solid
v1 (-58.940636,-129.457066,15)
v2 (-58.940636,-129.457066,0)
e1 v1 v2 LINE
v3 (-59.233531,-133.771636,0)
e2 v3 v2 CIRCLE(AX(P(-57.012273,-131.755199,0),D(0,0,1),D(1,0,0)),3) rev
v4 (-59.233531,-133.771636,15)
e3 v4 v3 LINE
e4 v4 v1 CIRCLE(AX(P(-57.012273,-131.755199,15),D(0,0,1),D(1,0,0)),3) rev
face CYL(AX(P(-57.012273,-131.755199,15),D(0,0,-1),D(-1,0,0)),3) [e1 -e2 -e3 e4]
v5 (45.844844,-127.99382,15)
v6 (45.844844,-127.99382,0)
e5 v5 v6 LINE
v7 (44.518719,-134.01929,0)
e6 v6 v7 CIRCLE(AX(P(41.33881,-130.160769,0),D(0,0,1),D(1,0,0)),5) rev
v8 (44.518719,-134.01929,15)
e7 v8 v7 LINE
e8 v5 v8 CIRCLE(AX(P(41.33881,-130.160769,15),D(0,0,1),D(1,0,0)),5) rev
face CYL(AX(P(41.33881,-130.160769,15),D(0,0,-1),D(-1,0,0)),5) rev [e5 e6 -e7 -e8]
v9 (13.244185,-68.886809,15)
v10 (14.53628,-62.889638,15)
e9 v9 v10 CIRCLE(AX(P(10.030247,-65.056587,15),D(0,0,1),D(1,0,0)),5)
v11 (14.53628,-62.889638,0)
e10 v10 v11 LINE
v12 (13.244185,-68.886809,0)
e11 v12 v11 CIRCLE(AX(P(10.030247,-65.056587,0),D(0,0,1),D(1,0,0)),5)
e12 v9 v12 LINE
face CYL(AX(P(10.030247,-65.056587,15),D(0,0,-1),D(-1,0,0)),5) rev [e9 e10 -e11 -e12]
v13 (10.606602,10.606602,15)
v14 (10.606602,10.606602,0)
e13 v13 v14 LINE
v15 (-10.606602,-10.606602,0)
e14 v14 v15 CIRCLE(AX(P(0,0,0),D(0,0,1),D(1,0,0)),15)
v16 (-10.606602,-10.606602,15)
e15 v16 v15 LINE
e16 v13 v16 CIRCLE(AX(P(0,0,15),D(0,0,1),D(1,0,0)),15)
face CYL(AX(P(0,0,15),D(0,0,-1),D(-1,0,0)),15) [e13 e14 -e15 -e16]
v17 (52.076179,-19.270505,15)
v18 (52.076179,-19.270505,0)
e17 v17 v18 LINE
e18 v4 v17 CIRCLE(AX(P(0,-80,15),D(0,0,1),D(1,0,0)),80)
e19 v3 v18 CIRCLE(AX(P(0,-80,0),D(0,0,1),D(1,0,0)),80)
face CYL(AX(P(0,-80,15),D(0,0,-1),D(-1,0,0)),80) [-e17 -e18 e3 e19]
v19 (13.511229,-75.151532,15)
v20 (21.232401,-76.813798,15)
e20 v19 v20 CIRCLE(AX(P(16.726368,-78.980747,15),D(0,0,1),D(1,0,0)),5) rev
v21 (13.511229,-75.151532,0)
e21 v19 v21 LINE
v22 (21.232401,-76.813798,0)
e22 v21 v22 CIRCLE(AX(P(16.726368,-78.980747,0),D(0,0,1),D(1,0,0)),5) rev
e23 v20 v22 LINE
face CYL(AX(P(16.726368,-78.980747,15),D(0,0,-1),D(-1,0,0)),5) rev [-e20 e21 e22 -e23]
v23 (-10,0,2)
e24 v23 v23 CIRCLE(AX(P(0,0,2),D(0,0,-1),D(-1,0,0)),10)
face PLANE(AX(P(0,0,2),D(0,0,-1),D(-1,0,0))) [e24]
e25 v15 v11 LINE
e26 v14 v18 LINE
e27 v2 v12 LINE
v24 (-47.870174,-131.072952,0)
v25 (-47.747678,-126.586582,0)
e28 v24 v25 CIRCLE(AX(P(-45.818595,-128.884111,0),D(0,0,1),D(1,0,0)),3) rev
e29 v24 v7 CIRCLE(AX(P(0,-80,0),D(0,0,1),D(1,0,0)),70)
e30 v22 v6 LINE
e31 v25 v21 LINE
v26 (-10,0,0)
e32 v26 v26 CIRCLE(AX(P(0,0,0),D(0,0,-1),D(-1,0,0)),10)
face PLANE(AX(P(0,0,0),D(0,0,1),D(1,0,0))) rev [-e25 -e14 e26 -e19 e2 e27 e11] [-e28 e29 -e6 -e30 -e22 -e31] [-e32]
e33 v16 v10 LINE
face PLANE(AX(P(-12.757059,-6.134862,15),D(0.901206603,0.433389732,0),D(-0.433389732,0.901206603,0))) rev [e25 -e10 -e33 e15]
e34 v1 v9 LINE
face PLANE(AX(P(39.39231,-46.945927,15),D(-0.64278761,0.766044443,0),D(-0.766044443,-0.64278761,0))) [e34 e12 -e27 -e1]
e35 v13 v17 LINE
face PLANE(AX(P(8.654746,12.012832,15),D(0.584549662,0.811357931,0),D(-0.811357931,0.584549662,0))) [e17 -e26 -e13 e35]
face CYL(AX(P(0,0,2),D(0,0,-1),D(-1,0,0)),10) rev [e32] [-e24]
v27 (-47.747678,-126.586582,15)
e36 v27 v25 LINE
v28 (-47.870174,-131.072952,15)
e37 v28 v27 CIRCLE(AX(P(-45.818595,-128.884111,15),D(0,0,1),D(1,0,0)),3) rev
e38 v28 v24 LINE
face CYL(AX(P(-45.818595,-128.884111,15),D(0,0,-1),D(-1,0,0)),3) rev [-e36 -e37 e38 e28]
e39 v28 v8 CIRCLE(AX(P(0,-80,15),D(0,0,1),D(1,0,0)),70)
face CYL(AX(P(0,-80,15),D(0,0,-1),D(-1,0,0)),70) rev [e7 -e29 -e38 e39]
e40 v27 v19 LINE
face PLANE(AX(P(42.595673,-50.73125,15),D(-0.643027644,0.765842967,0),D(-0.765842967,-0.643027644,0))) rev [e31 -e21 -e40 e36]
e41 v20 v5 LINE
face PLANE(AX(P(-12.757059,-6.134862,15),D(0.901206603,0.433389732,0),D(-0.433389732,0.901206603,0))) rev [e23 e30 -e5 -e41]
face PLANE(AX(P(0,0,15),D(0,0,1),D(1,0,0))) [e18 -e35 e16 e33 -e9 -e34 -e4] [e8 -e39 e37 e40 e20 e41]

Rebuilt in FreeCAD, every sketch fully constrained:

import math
import FreeCAD as App
import Part
import Sketcher
from FreeCAD import Vector
Q = App.Units.Quantity

doc = App.newDocument("Part")
body = doc.addObject("PartDesign::Body", "Body")

# Sketch on XY plane
sketch1 = body.newObject("Sketcher::SketchObject", "Sketch")
sketch1.AttachmentSupport = (doc.getObject("XY_Plane"), [""])
sketch1.MapMode = "FlatFace"
sketch1.addGeometry(Part.LineSegment(Vector(-53.6, -125, 0), Vector(-58.9, -129.5, 0)), False)
sketch1.addGeometry(Part.ArcOfCircle(Part.Circle(Vector(-57, -131.8, 0), Vector(0, 0, 1), 3), math.radians(130), math.radians(222)), False)
sketch1.addGeometry(Part.ArcOfCircle(Part.Circle(Vector(0, -80, 0), Vector(0, 0, 1), 80), math.radians(-138), math.radians(49)), False)
sketch1.addGeometry(Part.LineSegment(Vector(52.1, -19.3, 0), Vector(10.6, 10.6, 0)), False)
sketch1.addGeometry(Part.ArcOfCircle(Part.Circle(Vector(0, 0, 0), Vector(0, 0, 1), 15), math.radians(45), math.radians(225)), False)
sketch1.addGeometry(Part.LineSegment(Vector(-10.6, -10.6, 0), Vector(14.5, -62.9, 0)), False)
sketch1.addGeometry(Part.ArcOfCircle(Part.Circle(Vector(10, -65.1, 0), Vector(0, 0, 1), 5), math.radians(-50), math.radians(26)), False)
sketch1.addGeometry(Part.LineSegment(Vector(13.2, -68.9, 0), Vector(-53.6, -125, 0)), False)
sketch1.addGeometry(Part.ArcOfCircle(Part.Circle(Vector(16.7, -79, 0), Vector(0, 0, 1), 5), math.radians(26), math.radians(130)), False)
sketch1.addGeometry(Part.LineSegment(Vector(21.2, -76.8, 0), Vector(45.8, -128, 0)), False)
sketch1.addGeometry(Part.ArcOfCircle(Part.Circle(Vector(41.3, -130.2, 0), Vector(0, 0, 1), 5), math.radians(-51), math.radians(26)), False)
sketch1.addGeometry(Part.ArcOfCircle(Part.Circle(Vector(0, -80, 0), Vector(0, 0, 1), 70), math.radians(-133), math.radians(-51)), False)
sketch1.addGeometry(Part.ArcOfCircle(Part.Circle(Vector(-45.8, -128.9, 0), Vector(0, 0, 1), 3), math.radians(130), math.radians(227)), False)
sketch1.addGeometry(Part.LineSegment(Vector(-47.7, -126.6, 0), Vector(13.5, -75.2, 0)), False)
sketch1.addConstraint(Sketcher.Constraint("Tangent", 0, 2, 1, 1))
sketch1.addConstraint(Sketcher.Constraint("Tangent", 1, 2, 2, 1))
sketch1.addConstraint(Sketcher.Constraint("Coincident", 2, 2, 3, 1))
sketch1.addConstraint(Sketcher.Constraint("Coincident", 3, 2, 4, 1))
sketch1.addConstraint(Sketcher.Constraint("Coincident", 4, 2, 5, 1))
sketch1.addConstraint(Sketcher.Constraint("Tangent", 5, 2, 6, 2))
sketch1.addConstraint(Sketcher.Constraint("Tangent", 6, 1, 7, 1))
sketch1.addConstraint(Sketcher.Constraint("Coincident", 7, 2, 0, 1))
sketch1.addConstraint(Sketcher.Constraint("Tangent", 8, 1, 9, 1))
sketch1.addConstraint(Sketcher.Constraint("Tangent", 9, 2, 10, 2))
sketch1.addConstraint(Sketcher.Constraint("Tangent", 10, 1, 11, 2))
sketch1.addConstraint(Sketcher.Constraint("Tangent", 11, 1, 12, 2))
sketch1.addConstraint(Sketcher.Constraint("Tangent", 12, 1, 13, 1))
sketch1.addConstraint(Sketcher.Constraint("Tangent", 13, 2, 8, 2))
sketch1.addConstraint(Sketcher.Constraint("Coincident", 4, 3, -1, 1))
sketch1.addConstraint(Sketcher.Constraint("Coincident", 11, 3, 2, 3))
sketch1.addConstraint(Sketcher.Constraint("Equal", 6, 8))
sketch1.addConstraint(Sketcher.Constraint("Equal", 8, 10))
sketch1.addConstraint(Sketcher.Constraint("Equal", 1, 12))
sketch1.addConstraint(Sketcher.Constraint("PointOnObject", 2, 3, -2))
sketch1.addConstraint(Sketcher.Constraint("Parallel", 0, 7))
sketch1.addConstraint(Sketcher.Constraint("Parallel", 5, 9))
sketch1.addConstraint(Sketcher.Constraint("Radius", 1, 3.0))
sketch1.addConstraint(Sketcher.Constraint("Radius", 2, 80.0))
sketch1.addConstraint(Sketcher.Constraint("Radius", 4, 15.0))
sketch1.addConstraint(Sketcher.Constraint("Radius", 6, 5.0))
sketch1.addConstraint(Sketcher.Constraint("Radius", 11, 70.0))
sketch1.addConstraint(Sketcher.Constraint("Angle", 0, Q("-140 deg")))
sketch1.addConstraint(Sketcher.Constraint("DistanceY", 2, 3, -1, 1, 80.0))
sketch1.addConstraint(Sketcher.Constraint("DistanceY", 1, 3, -1, 1, 131.755199))
sketch1.addConstraint(Sketcher.Constraint("DistanceX", -1, 1, 3, 2, 10.606602))
sketch1.addConstraint(Sketcher.Constraint("DistanceX", 4, 2, -1, 1, 10.606602))
sketch1.addConstraint(Sketcher.Constraint("DistanceX", -1, 1, 8, 1, 21.232401))
sketch1.addConstraint(Sketcher.Constraint("DistanceY", 8, 1, -1, 1, 76.813798))
sketch1.addConstraint(Sketcher.Constraint("DistanceX", 5, 2, 2, 2, 37.539899))
sketch1.addConstraint(Sketcher.Constraint("DistanceX", 1, 3, 11, 1, 9.142099))
sketch1.addConstraint(Sketcher.Constraint("DistanceX", -1, 1, 10, 3, 41.33881))
sketch1.addConstraint(Sketcher.Constraint("DistanceX", 7, 2, -1, 1, 53.623111))
pad1 = body.newObject("PartDesign::Pad", "Pad")
pad1.Profile = sketch1
pad1.Length = 15

# Sketch on XY plane
sketch2 = body.newObject("Sketcher::SketchObject", "Sketch001")
sketch2.AttachmentSupport = (doc.getObject("XY_Plane"), [""])
sketch2.MapMode = "FlatFace"
sketch2.addGeometry(Part.Circle(Vector(0, 0, 0), Vector(0, 0, 1), 10), False)
sketch2.addConstraint(Sketcher.Constraint("Coincident", 0, 3, -1, 1))
sketch2.addConstraint(Sketcher.Constraint("Diameter", 0, 20.0))
pocket1 = body.newObject("PartDesign::Pocket", "Pocket")
pocket1.Profile = sketch2
pocket1.Length = 2
pocket1.Reversed = True

doc.recompute()
